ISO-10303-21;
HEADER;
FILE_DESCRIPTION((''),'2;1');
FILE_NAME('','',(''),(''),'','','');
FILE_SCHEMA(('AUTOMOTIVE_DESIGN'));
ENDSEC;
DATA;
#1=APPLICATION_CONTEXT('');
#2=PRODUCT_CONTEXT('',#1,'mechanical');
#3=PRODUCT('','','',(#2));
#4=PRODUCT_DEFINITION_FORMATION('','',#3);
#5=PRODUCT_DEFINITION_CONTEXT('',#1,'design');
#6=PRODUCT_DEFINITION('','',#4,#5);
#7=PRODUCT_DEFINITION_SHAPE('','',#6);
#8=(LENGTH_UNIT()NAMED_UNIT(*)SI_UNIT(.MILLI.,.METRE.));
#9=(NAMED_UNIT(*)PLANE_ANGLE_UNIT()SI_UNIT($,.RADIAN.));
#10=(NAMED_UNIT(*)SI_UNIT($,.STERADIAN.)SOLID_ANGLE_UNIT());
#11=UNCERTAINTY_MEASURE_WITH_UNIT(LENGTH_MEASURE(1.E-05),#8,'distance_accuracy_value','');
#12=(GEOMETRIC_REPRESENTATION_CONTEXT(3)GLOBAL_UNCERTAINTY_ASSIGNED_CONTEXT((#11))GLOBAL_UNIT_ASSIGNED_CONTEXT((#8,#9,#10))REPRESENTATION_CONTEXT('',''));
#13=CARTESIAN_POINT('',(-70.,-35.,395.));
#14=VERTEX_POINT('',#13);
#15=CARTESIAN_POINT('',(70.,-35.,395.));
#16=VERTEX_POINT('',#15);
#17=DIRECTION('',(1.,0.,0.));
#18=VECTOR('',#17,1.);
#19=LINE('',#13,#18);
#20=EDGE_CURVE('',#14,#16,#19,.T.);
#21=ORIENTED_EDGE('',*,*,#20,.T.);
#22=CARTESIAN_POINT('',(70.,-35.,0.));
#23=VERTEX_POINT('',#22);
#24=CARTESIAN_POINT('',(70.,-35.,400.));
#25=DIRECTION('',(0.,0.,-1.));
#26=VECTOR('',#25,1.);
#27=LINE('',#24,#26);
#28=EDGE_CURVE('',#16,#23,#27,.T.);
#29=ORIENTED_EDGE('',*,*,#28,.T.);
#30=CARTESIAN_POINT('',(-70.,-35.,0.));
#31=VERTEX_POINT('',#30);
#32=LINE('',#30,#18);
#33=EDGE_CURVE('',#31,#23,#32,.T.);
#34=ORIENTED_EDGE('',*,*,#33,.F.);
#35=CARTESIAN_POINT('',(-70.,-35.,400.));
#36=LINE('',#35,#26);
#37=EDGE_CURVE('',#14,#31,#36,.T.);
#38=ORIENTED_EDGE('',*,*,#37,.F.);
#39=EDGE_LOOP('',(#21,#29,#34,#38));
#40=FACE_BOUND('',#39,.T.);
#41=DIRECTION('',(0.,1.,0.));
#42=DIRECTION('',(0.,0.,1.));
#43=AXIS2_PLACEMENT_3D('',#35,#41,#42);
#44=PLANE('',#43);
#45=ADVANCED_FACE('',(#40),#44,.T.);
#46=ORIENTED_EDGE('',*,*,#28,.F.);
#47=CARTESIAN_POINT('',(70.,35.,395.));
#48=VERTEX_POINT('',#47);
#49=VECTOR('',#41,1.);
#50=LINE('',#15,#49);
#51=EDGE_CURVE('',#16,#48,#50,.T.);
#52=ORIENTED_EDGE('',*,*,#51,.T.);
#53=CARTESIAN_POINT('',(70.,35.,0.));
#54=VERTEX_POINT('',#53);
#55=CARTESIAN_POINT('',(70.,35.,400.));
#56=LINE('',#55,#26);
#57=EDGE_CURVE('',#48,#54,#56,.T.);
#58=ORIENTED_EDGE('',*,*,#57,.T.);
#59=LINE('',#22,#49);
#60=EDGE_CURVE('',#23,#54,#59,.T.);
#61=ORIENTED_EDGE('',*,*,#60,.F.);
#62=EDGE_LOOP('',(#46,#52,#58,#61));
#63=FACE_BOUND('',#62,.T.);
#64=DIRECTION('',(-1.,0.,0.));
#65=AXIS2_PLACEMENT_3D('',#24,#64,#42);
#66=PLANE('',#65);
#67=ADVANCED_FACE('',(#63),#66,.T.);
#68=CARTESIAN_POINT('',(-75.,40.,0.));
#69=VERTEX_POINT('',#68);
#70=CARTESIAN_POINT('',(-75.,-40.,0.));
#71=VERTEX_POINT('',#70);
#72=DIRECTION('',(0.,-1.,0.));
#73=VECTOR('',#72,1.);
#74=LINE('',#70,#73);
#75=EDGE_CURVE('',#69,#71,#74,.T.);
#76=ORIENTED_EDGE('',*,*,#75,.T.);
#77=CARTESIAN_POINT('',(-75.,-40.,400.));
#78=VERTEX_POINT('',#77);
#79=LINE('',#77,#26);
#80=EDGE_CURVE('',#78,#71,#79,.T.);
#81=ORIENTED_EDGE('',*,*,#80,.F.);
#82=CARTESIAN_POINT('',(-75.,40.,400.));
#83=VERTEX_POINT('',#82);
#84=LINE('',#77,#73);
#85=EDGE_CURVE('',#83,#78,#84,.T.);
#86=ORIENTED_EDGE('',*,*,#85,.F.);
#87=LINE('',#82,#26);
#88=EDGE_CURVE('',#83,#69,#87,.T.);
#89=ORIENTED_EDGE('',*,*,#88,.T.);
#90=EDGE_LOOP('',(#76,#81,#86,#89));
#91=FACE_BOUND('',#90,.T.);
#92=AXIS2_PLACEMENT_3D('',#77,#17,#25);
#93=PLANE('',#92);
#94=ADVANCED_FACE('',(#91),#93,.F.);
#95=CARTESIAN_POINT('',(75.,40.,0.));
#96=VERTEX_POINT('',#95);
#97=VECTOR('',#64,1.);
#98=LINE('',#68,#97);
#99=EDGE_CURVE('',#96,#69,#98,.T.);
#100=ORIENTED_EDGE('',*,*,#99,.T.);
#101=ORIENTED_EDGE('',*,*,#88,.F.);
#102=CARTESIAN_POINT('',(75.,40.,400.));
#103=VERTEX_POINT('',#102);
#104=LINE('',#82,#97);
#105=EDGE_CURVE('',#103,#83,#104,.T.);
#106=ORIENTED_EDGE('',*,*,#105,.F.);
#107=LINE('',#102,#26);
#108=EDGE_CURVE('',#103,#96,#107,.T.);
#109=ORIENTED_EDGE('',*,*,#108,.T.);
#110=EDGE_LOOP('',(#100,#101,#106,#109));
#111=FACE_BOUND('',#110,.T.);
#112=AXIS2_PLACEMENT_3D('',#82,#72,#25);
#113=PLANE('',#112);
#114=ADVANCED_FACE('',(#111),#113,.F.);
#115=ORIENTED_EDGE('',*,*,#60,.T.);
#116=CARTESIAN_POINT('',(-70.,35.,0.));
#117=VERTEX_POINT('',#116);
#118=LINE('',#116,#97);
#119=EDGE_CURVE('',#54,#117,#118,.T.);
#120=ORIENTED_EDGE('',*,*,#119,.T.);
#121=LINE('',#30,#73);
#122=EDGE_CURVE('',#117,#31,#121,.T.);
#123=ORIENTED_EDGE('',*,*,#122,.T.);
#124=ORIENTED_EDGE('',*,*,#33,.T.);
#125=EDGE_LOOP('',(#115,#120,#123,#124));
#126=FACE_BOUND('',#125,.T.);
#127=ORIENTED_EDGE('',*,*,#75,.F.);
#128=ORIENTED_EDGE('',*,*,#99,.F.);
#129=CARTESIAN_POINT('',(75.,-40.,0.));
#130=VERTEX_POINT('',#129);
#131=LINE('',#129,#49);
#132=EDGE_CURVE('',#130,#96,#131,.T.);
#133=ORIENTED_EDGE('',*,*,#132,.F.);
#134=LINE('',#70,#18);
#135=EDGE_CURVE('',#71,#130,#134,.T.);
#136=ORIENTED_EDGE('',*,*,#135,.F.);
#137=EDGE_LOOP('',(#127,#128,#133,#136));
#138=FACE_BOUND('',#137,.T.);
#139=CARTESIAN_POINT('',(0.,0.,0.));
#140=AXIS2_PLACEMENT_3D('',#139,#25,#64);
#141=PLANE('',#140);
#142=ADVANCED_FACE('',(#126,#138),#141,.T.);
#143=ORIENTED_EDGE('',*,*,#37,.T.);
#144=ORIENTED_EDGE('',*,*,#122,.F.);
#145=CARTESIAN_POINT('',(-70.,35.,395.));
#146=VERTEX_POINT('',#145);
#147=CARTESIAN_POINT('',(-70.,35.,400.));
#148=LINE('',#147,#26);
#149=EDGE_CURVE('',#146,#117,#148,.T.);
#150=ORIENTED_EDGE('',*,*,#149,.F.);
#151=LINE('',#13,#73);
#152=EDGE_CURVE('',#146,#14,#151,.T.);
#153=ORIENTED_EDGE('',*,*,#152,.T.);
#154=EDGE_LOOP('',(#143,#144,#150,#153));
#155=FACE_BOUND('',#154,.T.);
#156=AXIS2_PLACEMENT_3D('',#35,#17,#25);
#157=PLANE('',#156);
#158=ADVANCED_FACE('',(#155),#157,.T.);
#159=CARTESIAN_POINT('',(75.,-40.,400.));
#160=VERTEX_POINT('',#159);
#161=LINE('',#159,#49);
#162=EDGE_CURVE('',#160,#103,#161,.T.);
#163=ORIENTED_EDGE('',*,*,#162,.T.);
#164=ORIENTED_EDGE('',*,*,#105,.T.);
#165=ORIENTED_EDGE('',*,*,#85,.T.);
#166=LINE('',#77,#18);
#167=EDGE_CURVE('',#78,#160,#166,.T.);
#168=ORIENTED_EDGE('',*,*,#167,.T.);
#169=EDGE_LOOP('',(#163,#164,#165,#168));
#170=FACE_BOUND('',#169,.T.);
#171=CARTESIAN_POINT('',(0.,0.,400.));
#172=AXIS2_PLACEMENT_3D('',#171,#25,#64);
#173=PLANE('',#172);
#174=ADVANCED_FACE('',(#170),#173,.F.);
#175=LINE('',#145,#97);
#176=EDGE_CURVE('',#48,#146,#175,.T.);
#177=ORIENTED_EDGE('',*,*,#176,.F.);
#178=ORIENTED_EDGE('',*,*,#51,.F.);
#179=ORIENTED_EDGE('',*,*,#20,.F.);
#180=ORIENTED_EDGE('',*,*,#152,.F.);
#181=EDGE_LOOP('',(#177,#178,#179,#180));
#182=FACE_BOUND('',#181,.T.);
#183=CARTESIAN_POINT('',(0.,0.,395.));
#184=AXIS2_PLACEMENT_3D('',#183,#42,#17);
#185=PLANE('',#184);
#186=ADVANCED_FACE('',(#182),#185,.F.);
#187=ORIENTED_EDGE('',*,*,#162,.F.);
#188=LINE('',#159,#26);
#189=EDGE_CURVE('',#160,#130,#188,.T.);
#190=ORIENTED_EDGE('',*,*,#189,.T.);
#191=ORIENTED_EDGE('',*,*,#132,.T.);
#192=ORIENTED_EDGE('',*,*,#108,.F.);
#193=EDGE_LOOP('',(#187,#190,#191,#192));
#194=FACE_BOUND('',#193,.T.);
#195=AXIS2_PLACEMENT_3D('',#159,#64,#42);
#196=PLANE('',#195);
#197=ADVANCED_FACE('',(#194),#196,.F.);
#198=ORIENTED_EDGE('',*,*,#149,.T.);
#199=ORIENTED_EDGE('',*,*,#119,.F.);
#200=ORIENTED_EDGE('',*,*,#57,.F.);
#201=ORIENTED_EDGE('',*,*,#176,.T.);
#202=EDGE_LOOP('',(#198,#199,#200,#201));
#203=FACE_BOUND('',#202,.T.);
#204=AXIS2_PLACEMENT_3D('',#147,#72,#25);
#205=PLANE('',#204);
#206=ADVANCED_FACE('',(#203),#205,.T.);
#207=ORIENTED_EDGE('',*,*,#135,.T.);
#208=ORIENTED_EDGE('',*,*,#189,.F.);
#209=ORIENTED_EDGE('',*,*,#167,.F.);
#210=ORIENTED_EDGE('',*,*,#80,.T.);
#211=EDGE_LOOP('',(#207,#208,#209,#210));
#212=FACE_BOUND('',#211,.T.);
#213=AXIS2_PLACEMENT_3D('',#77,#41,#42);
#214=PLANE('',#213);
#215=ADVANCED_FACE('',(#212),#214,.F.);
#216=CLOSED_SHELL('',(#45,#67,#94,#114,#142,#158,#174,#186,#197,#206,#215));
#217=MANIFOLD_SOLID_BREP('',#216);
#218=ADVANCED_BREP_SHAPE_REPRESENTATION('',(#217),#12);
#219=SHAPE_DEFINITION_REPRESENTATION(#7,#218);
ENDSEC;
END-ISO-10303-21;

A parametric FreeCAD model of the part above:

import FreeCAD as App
import Part
import Sketcher


def add_polygon(sketch, points):
    """Adds a closed chain of lines whose ends are joined by coincident constraints."""
    first, n = sketch.GeometryCount, len(points)
    for a, b in zip(points, points[1:] + points[:1]):
        sketch.addGeometry(Part.LineSegment(App.Vector(*a, 0), App.Vector(*b, 0)), False)
    for i in range(n):
        sketch.addConstraint(Sketcher.Constraint("Coincident", first + i, 2, first + (i + 1) % n, 1))

doc = App.newDocument("Part")
body = doc.addObject("PartDesign::Body", "Body")

# Sketch on XY plane
sketch1 = body.newObject("Sketcher::SketchObject", "Sketch")
sketch1.AttachmentSupport = (doc.getObject("XY_Plane"), [""])
sketch1.MapMode = "FlatFace"
add_polygon(sketch1, [(-75, 40), (-75, -40), (75, -40), (75, 40)])  # lines 0-3
add_polygon(sketch1, [(70, -35), (-70, -35), (-70, 35), (70, 35)])  # lines 4-7
sketch1.addConstraint([
    Sketcher.Constraint("Vertical", 0),
    Sketcher.Constraint("Horizontal", 1),
    Sketcher.Constraint("Vertical", 2),
    Sketcher.Constraint("Horizontal", 3),
    Sketcher.Constraint("Horizontal", 4),
    Sketcher.Constraint("Vertical", 5),
    Sketcher.Constraint("Horizontal", 6),
    Sketcher.Constraint("Vertical", 7),
    Sketcher.Constraint("Symmetric", 0, 2, 2, 2, -1, 1),
    Sketcher.Constraint("Symmetric", 4, 2, 6, 2, -1, 1),
    Sketcher.Constraint("DistanceX", 1, 1, 1, 2, 150.0),
    Sketcher.Constraint("DistanceX", 4, 2, 4, 1, 140.0),
    Sketcher.Constraint("DistanceY", 0, 2, 0, 1, 80.0),
    Sketcher.Constraint("DistanceY", 5, 1, 5, 2, 70.0),
])
pad1 = body.newObject("PartDesign::Pad", "Pad")
pad1.Profile = sketch1
pad1.Length = 400

# Sketch on XY plane
sketch2 = body.newObject("Sketcher::SketchObject", "Sketch001")
sketch2.AttachmentSupport = (doc.getObject("XY_Plane"), [""])
sketch2.MapMode = "FlatFace"
sketch2.AttachmentOffset = App.Placement(App.Vector(0, 0, 400), App.Rotation())
add_polygon(sketch2, [(-75, 40), (-75, -40), (75, -40), (75, 40)])  # lines 0-3
sketch2.addConstraint([
    Sketcher.Constraint("Vertical", 0),
    Sketcher.Constraint("Horizontal", 1),
    Sketcher.Constraint("Vertical", 2),
    Sketcher.Constraint("Horizontal", 3),
    Sketcher.Constraint("Symmetric", 0, 2, 2, 2, -1, 1),
    Sketcher.Constraint("DistanceX", 1, 1, 1, 2, 150.0),
    Sketcher.Constraint("DistanceY", 0, 2, 0, 1, 80.0),
])
pad2 = body.newObject("PartDesign::Pad", "Pad001")
pad2.Profile = sketch2
pad2.Length = 5
pad2.Reversed = True

doc.recompute()
